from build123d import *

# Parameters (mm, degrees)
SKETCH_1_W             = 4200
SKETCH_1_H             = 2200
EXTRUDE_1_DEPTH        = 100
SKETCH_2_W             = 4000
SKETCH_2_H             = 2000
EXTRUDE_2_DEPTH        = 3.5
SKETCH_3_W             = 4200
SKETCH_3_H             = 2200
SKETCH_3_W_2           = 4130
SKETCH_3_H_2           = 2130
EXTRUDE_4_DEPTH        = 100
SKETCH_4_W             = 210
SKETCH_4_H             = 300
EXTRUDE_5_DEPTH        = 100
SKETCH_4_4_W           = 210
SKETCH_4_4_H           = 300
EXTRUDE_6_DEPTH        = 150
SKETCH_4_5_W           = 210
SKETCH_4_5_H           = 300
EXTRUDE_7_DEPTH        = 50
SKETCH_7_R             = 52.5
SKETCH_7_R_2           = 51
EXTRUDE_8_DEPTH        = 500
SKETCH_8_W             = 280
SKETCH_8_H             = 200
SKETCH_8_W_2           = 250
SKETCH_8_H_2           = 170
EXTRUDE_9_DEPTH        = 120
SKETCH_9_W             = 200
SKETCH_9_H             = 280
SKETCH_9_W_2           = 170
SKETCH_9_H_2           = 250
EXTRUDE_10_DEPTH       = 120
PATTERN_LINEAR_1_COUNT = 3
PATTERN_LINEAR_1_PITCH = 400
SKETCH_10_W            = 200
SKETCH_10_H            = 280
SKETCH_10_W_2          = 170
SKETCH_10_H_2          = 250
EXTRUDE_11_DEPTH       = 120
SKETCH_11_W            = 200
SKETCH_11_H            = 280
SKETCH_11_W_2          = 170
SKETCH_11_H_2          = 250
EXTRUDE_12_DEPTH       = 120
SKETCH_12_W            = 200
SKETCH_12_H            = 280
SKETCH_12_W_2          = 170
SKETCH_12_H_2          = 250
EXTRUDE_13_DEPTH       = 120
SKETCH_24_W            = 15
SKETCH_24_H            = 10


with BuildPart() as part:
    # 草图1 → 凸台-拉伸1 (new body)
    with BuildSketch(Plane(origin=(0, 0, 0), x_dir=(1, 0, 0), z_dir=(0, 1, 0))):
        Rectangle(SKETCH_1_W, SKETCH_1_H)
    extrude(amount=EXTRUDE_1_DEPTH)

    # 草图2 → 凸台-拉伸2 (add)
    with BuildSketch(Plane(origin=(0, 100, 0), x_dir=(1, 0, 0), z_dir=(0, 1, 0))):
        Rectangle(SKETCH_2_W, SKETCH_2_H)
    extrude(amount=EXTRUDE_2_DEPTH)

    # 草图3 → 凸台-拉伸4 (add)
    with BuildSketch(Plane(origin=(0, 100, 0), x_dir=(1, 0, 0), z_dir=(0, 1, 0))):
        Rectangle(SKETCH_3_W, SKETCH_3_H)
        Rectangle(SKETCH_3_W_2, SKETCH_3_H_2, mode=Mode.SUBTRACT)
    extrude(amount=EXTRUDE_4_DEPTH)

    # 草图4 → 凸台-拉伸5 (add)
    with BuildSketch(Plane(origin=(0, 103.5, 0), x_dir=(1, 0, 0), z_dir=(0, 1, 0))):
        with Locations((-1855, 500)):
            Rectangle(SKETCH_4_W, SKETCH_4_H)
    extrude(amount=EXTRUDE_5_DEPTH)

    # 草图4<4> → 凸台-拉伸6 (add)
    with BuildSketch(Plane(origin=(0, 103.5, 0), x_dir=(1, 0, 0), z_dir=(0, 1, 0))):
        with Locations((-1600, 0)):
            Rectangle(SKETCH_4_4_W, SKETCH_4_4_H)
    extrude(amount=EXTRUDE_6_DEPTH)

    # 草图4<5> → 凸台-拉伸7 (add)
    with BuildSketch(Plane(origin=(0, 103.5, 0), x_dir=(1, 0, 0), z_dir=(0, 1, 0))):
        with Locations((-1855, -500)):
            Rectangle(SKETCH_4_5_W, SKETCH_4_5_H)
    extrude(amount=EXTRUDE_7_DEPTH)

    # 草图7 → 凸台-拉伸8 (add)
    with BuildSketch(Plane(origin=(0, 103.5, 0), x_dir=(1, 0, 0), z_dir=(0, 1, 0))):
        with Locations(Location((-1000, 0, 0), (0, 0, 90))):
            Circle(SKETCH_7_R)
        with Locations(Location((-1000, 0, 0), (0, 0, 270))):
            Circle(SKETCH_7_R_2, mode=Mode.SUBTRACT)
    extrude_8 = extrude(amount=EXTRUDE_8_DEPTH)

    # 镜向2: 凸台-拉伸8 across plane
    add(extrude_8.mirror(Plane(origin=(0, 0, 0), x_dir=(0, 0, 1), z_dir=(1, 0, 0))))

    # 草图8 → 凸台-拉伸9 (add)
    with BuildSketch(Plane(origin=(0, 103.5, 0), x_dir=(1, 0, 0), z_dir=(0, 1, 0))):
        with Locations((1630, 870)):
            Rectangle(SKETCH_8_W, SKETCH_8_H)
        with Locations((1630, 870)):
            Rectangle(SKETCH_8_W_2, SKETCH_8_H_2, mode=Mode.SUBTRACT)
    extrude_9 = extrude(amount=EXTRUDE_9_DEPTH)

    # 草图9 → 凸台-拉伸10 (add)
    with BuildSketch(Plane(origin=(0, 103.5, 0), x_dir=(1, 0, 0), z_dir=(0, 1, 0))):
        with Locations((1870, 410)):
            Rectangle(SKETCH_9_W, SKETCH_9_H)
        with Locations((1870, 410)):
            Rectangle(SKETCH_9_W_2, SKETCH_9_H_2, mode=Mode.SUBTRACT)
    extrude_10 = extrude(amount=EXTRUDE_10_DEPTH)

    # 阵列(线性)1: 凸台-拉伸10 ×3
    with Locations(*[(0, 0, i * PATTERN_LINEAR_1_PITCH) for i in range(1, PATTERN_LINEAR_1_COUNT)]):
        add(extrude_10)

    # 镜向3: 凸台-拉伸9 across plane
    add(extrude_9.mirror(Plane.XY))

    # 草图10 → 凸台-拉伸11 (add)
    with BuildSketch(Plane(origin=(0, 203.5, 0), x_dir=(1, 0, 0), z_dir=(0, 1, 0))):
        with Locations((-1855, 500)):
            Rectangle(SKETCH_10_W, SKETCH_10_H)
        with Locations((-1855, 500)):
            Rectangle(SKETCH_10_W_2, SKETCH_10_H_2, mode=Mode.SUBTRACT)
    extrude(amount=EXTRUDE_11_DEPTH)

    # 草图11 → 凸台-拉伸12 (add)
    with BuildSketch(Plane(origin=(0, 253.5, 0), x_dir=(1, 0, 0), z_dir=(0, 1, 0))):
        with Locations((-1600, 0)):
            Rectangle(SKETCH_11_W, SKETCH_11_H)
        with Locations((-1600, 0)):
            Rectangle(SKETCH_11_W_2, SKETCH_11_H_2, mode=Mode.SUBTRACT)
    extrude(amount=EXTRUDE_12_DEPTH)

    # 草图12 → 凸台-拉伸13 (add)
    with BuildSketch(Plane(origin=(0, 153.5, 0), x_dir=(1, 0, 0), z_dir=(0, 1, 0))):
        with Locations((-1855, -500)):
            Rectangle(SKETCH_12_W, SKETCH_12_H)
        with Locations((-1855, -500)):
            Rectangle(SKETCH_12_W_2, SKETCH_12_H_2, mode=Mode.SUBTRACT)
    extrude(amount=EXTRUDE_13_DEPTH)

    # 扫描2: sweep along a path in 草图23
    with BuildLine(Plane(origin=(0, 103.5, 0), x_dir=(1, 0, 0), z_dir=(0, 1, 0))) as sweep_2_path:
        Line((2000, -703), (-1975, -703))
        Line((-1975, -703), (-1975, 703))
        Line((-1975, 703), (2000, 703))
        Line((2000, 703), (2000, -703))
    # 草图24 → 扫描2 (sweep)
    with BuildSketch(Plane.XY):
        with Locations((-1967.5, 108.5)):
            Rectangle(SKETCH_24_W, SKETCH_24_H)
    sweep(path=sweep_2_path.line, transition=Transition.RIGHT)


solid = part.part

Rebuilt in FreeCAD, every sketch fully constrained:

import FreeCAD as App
import Part
import Sketcher

V = App.Vector
Q = App.Units.Quantity


def add_polygon(sketch, points):
    """Adds a closed chain of lines whose ends are joined by coincident constraints."""
    first, n = sketch.GeometryCount, len(points)
    for a, b in zip(points, points[1:] + points[:1]):
        sketch.addGeometry(Part.LineSegment(App.Vector(*a, 0), App.Vector(*b, 0)), False)
    for i in range(n):
        sketch.addConstraint(Sketcher.Constraint("Coincident", first + i, 2, first + (i + 1) % n, 1))

doc = App.newDocument("Part")
body = doc.addObject("PartDesign::Body", "Body")

sketch1 = body.newObject("Sketcher::SketchObject", "Sketch")
sketch1.AttachmentSupport = (doc.getObject("XZ_Plane"), [""])
sketch1.MapMode = "FlatFace"
add_polygon(sketch1, [(-2100, -1100), (-2100, 1100), (2100, 1100), (2100, -1100)])
sketch1.addConstraint([
    Sketcher.Constraint("Vertical", 0),
    Sketcher.Constraint("Horizontal", 1),
    Sketcher.Constraint("Vertical", 2),
    Sketcher.Constraint("Horizontal", 3),
    Sketcher.Constraint("Symmetric", 0, 2, 2, 2, -1, 1),
    Sketcher.Constraint("DistanceX", 1, 1, 1, 2, Q("4200 mm")),
    Sketcher.Constraint("DistanceY", 0, 1, 0, 2, Q("2200 mm")),
])
pad1 = body.newObject("PartDesign::Pad", "Pad")
pad1.Profile = sketch1
pad1.Length = 100
pad1.Reversed = True

sketch2 = body.newObject("Sketcher::SketchObject", "Sketch001")
sketch2.AttachmentSupport = (doc.getObject("XZ_Plane"), [""])
sketch2.MapMode = "FlatFace"
sketch2.AttachmentOffset = App.Placement(V(0, 0, -100), App.Rotation())
add_polygon(sketch2, [(-2000, -1000), (-2000, 1000), (2000, 1000), (2000, -1000)])
sketch2.addConstraint([
    Sketcher.Constraint("Vertical", 0),
    Sketcher.Constraint("Horizontal", 1),
    Sketcher.Constraint("Vertical", 2),
    Sketcher.Constraint("Horizontal", 3),
    Sketcher.Constraint("Symmetric", 0, 2, 2, 2, -1, 1),
    Sketcher.Constraint("DistanceX", 1, 1, 1, 2, Q("4000 mm")),
    Sketcher.Constraint("DistanceY", 0, 1, 0, 2, Q("2000 mm")),
])
pad2 = body.newObject("PartDesign::Pad", "Pad001")
pad2.Profile = sketch2
pad2.Length = 3.5
pad2.Reversed = True

sketch3 = body.newObject("Sketcher::SketchObject", "Sketch002")
sketch3.AttachmentSupport = (doc.getObject("XZ_Plane"), [""])
sketch3.MapMode = "FlatFace"
sketch3.AttachmentOffset = App.Placement(V(0, 0, -100), App.Rotation())
add_polygon(sketch3, [(-2100, -1100), (-2100, 1100), (2100, 1100), (2100, -1100)])
add_polygon(sketch3, [(2065, 1065), (-2065, 1065), (-2065, -1065), (2065, -1065)])
sketch3.addConstraint([
    Sketcher.Constraint("Vertical", 0),
    Sketcher.Constraint("Horizontal", 1),
    Sketcher.Constraint("Vertical", 2),
    Sketcher.Constraint("Horizontal", 3),
    Sketcher.Constraint("Horizontal", 4),
    Sketcher.Constraint("Vertical", 5),
    Sketcher.Constraint("Horizontal", 6),
    Sketcher.Constraint("Vertical", 7),
    Sketcher.Constraint("Symmetric", 0, 2, 2, 2, -1, 1),
    Sketcher.Constraint("Symmetric", 4, 2, 6, 2, -1, 1),
    Sketcher.Constraint("DistanceX", 1, 1, 1, 2, Q("4200 mm")),
    Sketcher.Constraint("DistanceX", 4, 2, 4, 1, Q("4130 mm")),
    Sketcher.Constraint("DistanceY", 0, 1, 0, 2, Q("2200 mm")),
    Sketcher.Constraint("DistanceY", 5, 2, 5, 1, Q("2130 mm")),
])
pad3 = body.newObject("PartDesign::Pad", "Pad002")
pad3.Profile = sketch3
pad3.Length = 100
pad3.Reversed = True

sketch4 = body.newObject("Sketcher::SketchObject", "Sketch003")
sketch4.AttachmentSupport = (doc.getObject("XZ_Plane"), [""])
sketch4.MapMode = "FlatFace"
sketch4.AttachmentOffset = App.Placement(V(0, 0, -103.5), App.Rotation())
add_polygon(sketch4, [(-1960, -650), (-1960, -350), (-1750, -350), (-1750, -650)])
sketch4.addConstraint([
    Sketcher.Constraint("Vertical", 0),
    Sketcher.Constraint("Horizontal", 1),
    Sketcher.Constraint("Vertical", 2),
    Sketcher.Constraint("Horizontal", 3),
    Sketcher.Constraint("DistanceX", 1, 1, 1, 2, Q("210 mm")),
    Sketcher.Constraint("DistanceY", 0, 1, 0, 2, Q("300 mm")),
    Sketcher.Constraint("DistanceX", 0, 2, -1, 1, Q("1960 mm")),
    Sketcher.Constraint("DistanceY", 0, 2, -1, 1, Q("350 mm")),
])
pad4 = body.newObject("PartDesign::Pad", "Pad003")
pad4.Profile = sketch4
pad4.Length = 100
pad4.Reversed = True

sketch5 = body.newObject("Sketcher::SketchObject", "Sketch004")
sketch5.AttachmentSupport = (doc.getObject("XZ_Plane"), [""])
sketch5.MapMode = "FlatFace"
sketch5.AttachmentOffset = App.Placement(V(0, 0, -103.5), App.Rotation())
add_polygon(sketch5, [(-1705, -150), (-1705, 150), (-1495, 150), (-1495, -150)])
sketch5.addConstraint([
    Sketcher.Constraint("Vertical", 0),
    Sketcher.Constraint("Horizontal", 1),
    Sketcher.Constraint("Vertical", 2),
    Sketcher.Constraint("Horizontal", 3),
    Sketcher.Constraint("DistanceX", 1, 1, 1, 2, Q("210 mm")),
    Sketcher.Constraint("DistanceY", 0, 1, 0, 2, Q("300 mm")),
    Sketcher.Constraint("DistanceX", 0, 2, -1, 1, Q("1705 mm")),
    Sketcher.Constraint("DistanceY", -1, 1, 0, 2, Q("150 mm")),
])
pad5 = body.newObject("PartDesign::Pad", "Pad004")
pad5.Profile = sketch5
pad5.Length = 150
pad5.Reversed = True

sketch6 = body.newObject("Sketcher::SketchObject", "Sketch005")
sketch6.AttachmentSupport = (doc.getObject("XZ_Plane"), [""])
sketch6.MapMode = "FlatFace"
sketch6.AttachmentOffset = App.Placement(V(0, 0, -103.5), App.Rotation())
add_polygon(sketch6, [(-1960, 350), (-1960, 650), (-1750, 650), (-1750, 350)])
sketch6.addConstraint([
    Sketcher.Constraint("Vertical", 0),
    Sketcher.Constraint("Horizontal", 1),
    Sketcher.Constraint("Vertical", 2),
    Sketcher.Constraint("Horizontal", 3),
    Sketcher.Constraint("DistanceX", 1, 1, 1, 2, Q("210 mm")),
    Sketcher.Constraint("DistanceY", 0, 1, 0, 2, Q("300 mm")),
    Sketcher.Constraint("DistanceX", 0, 2, -1, 1, Q("1960 mm")),
    Sketcher.Constraint("DistanceY", -1, 1, 0, 2, Q("650 mm")),
])
pad6 = body.newObject("PartDesign::Pad", "Pad005")
pad6.Profile = sketch6
pad6.Length = 50
pad6.Reversed = True

sketch7 = body.newObject("Sketcher::SketchObject", "Sketch006")
sketch7.AttachmentSupport = (doc.getObject("XZ_Plane"), [""])
sketch7.MapMode = "FlatFace"
sketch7.AttachmentOffset = App.Placement(V(0, 0, -103.5), App.Rotation())
sketch7.addGeometry([
    Part.Circle(V(-1000, 0, 0), V(0, 0, 1), 52.5),
    Part.Circle(V(-1000, 0, 0), V(0, 0, 1), 51),
], False)
sketch7.addConstraint([
    Sketcher.Constraint("Coincident", 1, 3, 0, 3),
    Sketcher.Constraint("PointOnObject", 0, 3, -1),
    Sketcher.Constraint("Diameter", 0, Q("105 mm")),
    Sketcher.Constraint("Diameter", 1, Q("102 mm")),
    Sketcher.Constraint("DistanceX", 0, 3, -1, 1, Q("1000 mm")),
])
pad7 = body.newObject("PartDesign::Pad", "Pad006")
pad7.Profile = sketch7
pad7.Length = 500
pad7.Reversed = True
doc.recompute()

mirrored = body.newObject("PartDesign::Mirrored", "Mirrored")
mirrored.Originals = [pad7]
mirrored.MirrorPlane = (doc.getObject("YZ_Plane"), [""])
body.Tip = mirrored

sketch8 = body.newObject("Sketcher::SketchObject", "Sketch007")
sketch8.AttachmentSupport = (doc.getObject("XZ_Plane"), [""])
sketch8.MapMode = "FlatFace"
sketch8.AttachmentOffset = App.Placement(V(0, 0, -103.5), App.Rotation())
add_polygon(sketch8, [(1490, -970), (1490, -770), (1770, -770), (1770, -970)])
add_polygon(sketch8, [(1755, -785), (1505, -785), (1505, -955), (1755, -955)])
sketch8.addConstraint([
    Sketcher.Constraint("Vertical", 0),
    Sketcher.Constraint("Horizontal", 1),
    Sketcher.Constraint("Vertical", 2),
    Sketcher.Constraint("Horizontal", 3),
    Sketcher.Constraint("Horizontal", 4),
    Sketcher.Constraint("Vertical", 5),
    Sketcher.Constraint("Horizontal", 6),
    Sketcher.Constraint("Vertical", 7),
    Sketcher.Constraint("DistanceX", 1, 1, 1, 2, Q("280 mm")),
    Sketcher.Constraint("DistanceX", 4, 2, 4, 1, Q("250 mm")),
    Sketcher.Constraint("DistanceY", 0, 1, 0, 2, Q("200 mm")),
    Sketcher.Constraint("DistanceY", 5, 2, 5, 1, Q("170 mm")),
    Sketcher.Constraint("DistanceX", -1, 1, 0, 2, Q("1490 mm")),
    Sketcher.Constraint("DistanceY", 0, 2, -1, 1, Q("770 mm")),
    Sketcher.Constraint("DistanceX", -1, 1, 4, 2, Q("1505 mm")),
    Sketcher.Constraint("DistanceY", 4, 2, -1, 1, Q("785 mm")),
])
pad8 = body.newObject("PartDesign::Pad", "Pad007")
pad8.Profile = sketch8
pad8.Length = 120
pad8.Reversed = True

sketch9 = body.newObject("Sketcher::SketchObject", "Sketch008")
sketch9.AttachmentSupport = (doc.getObject("XZ_Plane"), [""])
sketch9.MapMode = "FlatFace"
sketch9.AttachmentOffset = App.Placement(V(0, 0, -103.5), App.Rotation())
add_polygon(sketch9, [(1770, -550), (1770, -270), (1970, -270), (1970, -550)])
add_polygon(sketch9, [(1955, -285), (1785, -285), (1785, -535), (1955, -535)])
sketch9.addConstraint([
    Sketcher.Constraint("Vertical", 0),
    Sketcher.Constraint("Horizontal", 1),
    Sketcher.Constraint("Vertical", 2),
    Sketcher.Constraint("Horizontal", 3),
    Sketcher.Constraint("Horizontal", 4),
    Sketcher.Constraint("Vertical", 5),
    Sketcher.Constraint("Horizontal", 6),
    Sketcher.Constraint("Vertical", 7),
    Sketcher.Constraint("DistanceX", 1, 1, 1, 2, Q("200 mm")),
    Sketcher.Constraint("DistanceX", 4, 2, 4, 1, Q("170 mm")),
    Sketcher.Constraint("DistanceY", 0, 1, 0, 2, Q("280 mm")),
    Sketcher.Constraint("DistanceY", 5, 2, 5, 1, Q("250 mm")),
    Sketcher.Constraint("DistanceX", -1, 1, 0, 2, Q("1770 mm")),
    Sketcher.Constraint("DistanceY", 0, 2, -1, 1, Q("270 mm")),
    Sketcher.Constraint("DistanceX", -1, 1, 4, 2, Q("1785 mm")),
    Sketcher.Constraint("DistanceY", 4, 2, -1, 1, Q("285 mm")),
])
pad9 = body.newObject("PartDesign::Pad", "Pad008")
pad9.Profile = sketch9
pad9.Length = 120
pad9.Reversed = True
doc.recompute()

linearpattern = body.newObject("PartDesign::LinearPattern", "LinearPattern")
linearpattern.Originals = [pad9]
linearpattern.Direction = (doc.getObject("Z_Axis"), [""])
linearpattern.Mode = "offset"
linearpattern.Offset = 400
linearpattern.Occurrences = 3
body.Tip = linearpattern
doc.recompute()

mirrored2 = body.newObject("PartDesign::Mirrored", "Mirrored001")
mirrored2.Originals = [pad8]
mirrored2.MirrorPlane = (doc.getObject("XY_Plane"), [""])
body.Tip = mirrored2

sketch10 = body.newObject("Sketcher::SketchObject", "Sketch009")
sketch10.AttachmentSupport = (doc.getObject("XZ_Plane"), [""])
sketch10.MapMode = "FlatFace"
sketch10.AttachmentOffset = App.Placement(V(0, 0, -203.5), App.Rotation())
add_polygon(sketch10, [(-1955, -640), (-1955, -360), (-1755, -360), (-1755, -640)])
add_polygon(sketch10, [(-1770, -375), (-1940, -375), (-1940, -625), (-1770, -625)])
sketch10.addConstraint([
    Sketcher.Constraint("Vertical", 0),
    Sketcher.Constraint("Horizontal", 1),
    Sketcher.Constraint("Vertical", 2),
    Sketcher.Constraint("Horizontal", 3),
    Sketcher.Constraint("Horizontal", 4),
    Sketcher.Constraint("Vertical", 5),
    Sketcher.Constraint("Horizontal", 6),
    Sketcher.Constraint("Vertical", 7),
    Sketcher.Constraint("DistanceX", 1, 1, 1, 2, Q("200 mm")),
    Sketcher.Constraint("DistanceX", 4, 2, 4, 1, Q("170 mm")),
    Sketcher.Constraint("DistanceY", 0, 1, 0, 2, Q("280 mm")),
    Sketcher.Constraint("DistanceY", 5, 2, 5, 1, Q("250 mm")),
    Sketcher.Constraint("DistanceX", 0, 2, -1, 1, Q("1955 mm")),
    Sketcher.Constraint("DistanceY", 0, 2, -1, 1, Q("360 mm")),
    Sketcher.Constraint("DistanceX", 4, 2, -1, 1, Q("1940 mm")),
    Sketcher.Constraint("DistanceY", 4, 2, -1, 1, Q("375 mm")),
])
pad10 = body.newObject("PartDesign::Pad", "Pad009")
pad10.Profile = sketch10
pad10.Length = 120
pad10.Reversed = True

sketch11 = body.newObject("Sketcher::SketchObject", "Sketch010")
sketch11.AttachmentSupport = (doc.getObject("XZ_Plane"), [""])
sketch11.MapMode = "FlatFace"
sketch11.AttachmentOffset = App.Placement(V(0, 0, -253.5), App.Rotation())
add_polygon(sketch11, [(-1700, -140), (-1700, 140), (-1500, 140), (-1500, -140)])
add_polygon(sketch11, [(-1515, 125), (-1685, 125), (-1685, -125), (-1515, -125)])
sketch11.addConstraint([
    Sketcher.Constraint("Vertical", 0),
    Sketcher.Constraint("Horizontal", 1),
    Sketcher.Constraint("Vertical", 2),
    Sketcher.Constraint("Horizontal", 3),
    Sketcher.Constraint("Horizontal", 4),
    Sketcher.Constraint("Vertical", 5),
    Sketcher.Constraint("Horizontal", 6),
    Sketcher.Constraint("Vertical", 7),
    Sketcher.Constraint("DistanceX", 1, 1, 1, 2, Q("200 mm")),
    Sketcher.Constraint("DistanceX", 4, 2, 4, 1, Q("170 mm")),
    Sketcher.Constraint("DistanceY", 0, 1, 0, 2, Q("280 mm")),
    Sketcher.Constraint("DistanceY", 5, 2, 5, 1, Q("250 mm")),
    Sketcher.Constraint("DistanceX", 0, 2, -1, 1, Q("1700 mm")),
    Sketcher.Constraint("DistanceY", -1, 1, 0, 2, Q("140 mm")),
    Sketcher.Constraint("DistanceX", 4, 2, -1, 1, Q("1685 mm")),
    Sketcher.Constraint("DistanceY", -1, 1, 4, 2, Q("125 mm")),
])
pad11 = body.newObject("PartDesign::Pad", "Pad010")
pad11.Profile = sketch11
pad11.Length = 120
pad11.Reversed = True

sketch12 = body.newObject("Sketcher::SketchObject", "Sketch011")
sketch12.AttachmentSupport = (doc.getObject("XZ_Plane"), [""])
sketch12.MapMode = "FlatFace"
sketch12.AttachmentOffset = App.Placement(V(0, 0, -153.5), App.Rotation())
add_polygon(sketch12, [(-1955, 360), (-1955, 640), (-1755, 640), (-1755, 360)])
add_polygon(sketch12, [(-1770, 625), (-1940, 625), (-1940, 375), (-1770, 375)])
sketch12.addConstraint([
    Sketcher.Constraint("Vertical", 0),
    Sketcher.Constraint("Horizontal", 1),
    Sketcher.Constraint("Vertical", 2),
    Sketcher.Constraint("Horizontal", 3),
    Sketcher.Constraint("Horizontal", 4),
    Sketcher.Constraint("Vertical", 5),
    Sketcher.Constraint("Horizontal", 6),
    Sketcher.Constraint("Vertical", 7),
    Sketcher.Constraint("DistanceX", 1, 1, 1, 2, Q("200 mm")),
    Sketcher.Constraint("DistanceX", 4, 2, 4, 1, Q("170 mm")),
    Sketcher.Constraint("DistanceY", 0, 1, 0, 2, Q("280 mm")),
    Sketcher.Constraint("DistanceY", 5, 2, 5, 1, Q("250 mm")),
    Sketcher.Constraint("DistanceX", 0, 2, -1, 1, Q("1955 mm")),
    Sketcher.Constraint("DistanceY", -1, 1, 0, 2, Q("640 mm")),
    Sketcher.Constraint("DistanceX", 4, 2, -1, 1, Q("1940 mm")),
    Sketcher.Constraint("DistanceY", -1, 1, 4, 2, Q("625 mm")),
])
pad12 = body.newObject("PartDesign::Pad", "Pad011")
pad12.Profile = sketch12
pad12.Length = 120
pad12.Reversed = True

sketch13 = body.newObject("Sketcher::SketchObject", "Sketch012")
sketch13.AttachmentSupport = (doc.getObject("XY_Plane"), [""])
sketch13.MapMode = "FlatFace"
add_polygon(sketch13, [(-1975, 113.5), (-1975, 103.5), (-1960, 103.5), (-1960, 113.5)])
sketch13.addConstraint([
    Sketcher.Constraint("Vertical", 0),
    Sketcher.Constraint("Horizontal", 1),
    Sketcher.Constraint("Vertical", 2),
    Sketcher.Constraint("Horizontal", 3),
    Sketcher.Constraint("DistanceX", 1, 1, 1, 2, Q("15 mm")),
    Sketcher.Constraint("DistanceY", 0, 2, 0, 1, Q("10 mm")),
    Sketcher.Constraint("DistanceX", 0, 2, -1, 1, Q("1975 mm")),
    Sketcher.Constraint("DistanceY", -1, 1, 0, 2, Q("103.5 mm")),
])

sketch14 = body.newObject("Sketcher::SketchObject", "Sketch013")
sketch14.AttachmentSupport = (doc.getObject("XZ_Plane"), [""])
sketch14.MapMode = "FlatFace"
sketch14.AttachmentOffset = App.Placement(V(0, 0, -103.5), App.Rotation())
add_polygon(sketch14, [(2000, 703), (-1975, 703), (-1975, -703), (2000, -703)])
sketch14.addConstraint([
    Sketcher.Constraint("Horizontal", 0),
    Sketcher.Constraint("Vertical", 1),
    Sketcher.Constraint("Horizontal", 2),
    Sketcher.Constraint("Vertical", 3),
    Sketcher.Constraint("DistanceX", 0, 2, 0, 1, Q("3975 mm")),
    Sketcher.Constraint("DistanceY", 1, 2, 1, 1, Q("1406 mm")),
    Sketcher.Constraint("DistanceX", 0, 2, -1, 1, Q("1975 mm")),
    Sketcher.Constraint("DistanceY", -1, 1, 0, 2, Q("703 mm")),
])
doc.recompute()

additivepipe = body.newObject("PartDesign::AdditivePipe", "AdditivePipe")
additivepipe.Profile = sketch13
additivepipe.Spine = (sketch14, ["Edge1", "Edge2", "Edge3", "Edge4"])
additivepipe.Transition = "Right corner"

doc.recompute()
